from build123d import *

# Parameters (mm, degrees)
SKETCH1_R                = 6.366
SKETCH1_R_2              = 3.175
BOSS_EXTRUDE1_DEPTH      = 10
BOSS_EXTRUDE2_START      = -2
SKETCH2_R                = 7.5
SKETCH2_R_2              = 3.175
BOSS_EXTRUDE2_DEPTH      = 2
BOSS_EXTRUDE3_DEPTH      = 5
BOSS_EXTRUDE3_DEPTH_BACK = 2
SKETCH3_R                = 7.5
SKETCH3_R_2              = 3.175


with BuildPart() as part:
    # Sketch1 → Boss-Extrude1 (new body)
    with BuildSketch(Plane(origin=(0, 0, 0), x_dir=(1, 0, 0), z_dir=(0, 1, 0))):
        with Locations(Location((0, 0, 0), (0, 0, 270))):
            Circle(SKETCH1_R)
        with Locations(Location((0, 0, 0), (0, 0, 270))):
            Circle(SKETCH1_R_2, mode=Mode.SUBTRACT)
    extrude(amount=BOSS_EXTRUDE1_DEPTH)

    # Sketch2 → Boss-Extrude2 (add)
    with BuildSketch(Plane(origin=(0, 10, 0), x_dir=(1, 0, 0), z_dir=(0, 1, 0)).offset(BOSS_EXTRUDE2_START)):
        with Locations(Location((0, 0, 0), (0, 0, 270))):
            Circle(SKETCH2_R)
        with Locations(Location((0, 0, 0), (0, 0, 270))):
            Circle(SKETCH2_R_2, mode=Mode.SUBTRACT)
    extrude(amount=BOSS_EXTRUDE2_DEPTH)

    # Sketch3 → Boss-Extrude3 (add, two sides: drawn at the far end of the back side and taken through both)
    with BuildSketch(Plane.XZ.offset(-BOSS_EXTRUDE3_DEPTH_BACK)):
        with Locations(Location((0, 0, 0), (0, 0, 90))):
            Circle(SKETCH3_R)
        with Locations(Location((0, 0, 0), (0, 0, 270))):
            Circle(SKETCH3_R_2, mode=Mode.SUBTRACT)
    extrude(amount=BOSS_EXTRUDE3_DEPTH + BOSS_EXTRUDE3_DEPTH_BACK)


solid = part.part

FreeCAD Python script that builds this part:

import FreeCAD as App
import Part
import Sketcher

V = App.Vector

doc = App.newDocument("Part")
params = doc.addObject("Spreadsheet::Sheet", "Params")
for row, (alias, value) in enumerate([
    ("sketch1_diameter", "6.35 mm"),
    ("pad1_length", "10 mm"),
    ("sketch2_diameter", "15 mm"),
    ("sketch2_diameter2", "6.35 mm"),
    ("pad2_length", "2 mm"),
    ("sketch3_diameter", "15 mm"),
    ("sketch3_diameter2", "6.35 mm"),
    ("pad3_length", "5 mm"),
    ("pad3_length2", "2 mm"),
], start=1):
    params.set(f"A{row}", alias)
    params.set(f"B{row}", "=" + value)
    params.setAlias(f"B{row}", alias)

body = doc.addObject("PartDesign::Body", "Body")

# Sketch on XZ plane
sketch1 = doc.addObject("Sketcher::SketchObject", "Sketch")
body.addObject(sketch1)
sketch1.AttachmentSupport = (doc.XZ_Plane, [""])
sketch1.MapMode = "FlatFace"
sketch1.addGeometry(Part.Circle(V(0, 0, 0), V(0, 0, 1), 6.4), False)
sketch1.addGeometry(Part.Circle(V(0, 0, 0), V(0, 0, 1), 3.2), False)
sketch1.addConstraint(Sketcher.Constraint("Coincident", 0, 3, -1, 1))
sketch1.addConstraint(Sketcher.Constraint("Coincident", 1, 3, -1, 1))
sketch1.addConstraint(Sketcher.Constraint("Diameter", 1, 6.35))
sketch1.addConstraint(Sketcher.Constraint("Diameter", 0, 12.732))
sketch1.setExpression("Constraints[2]", "Params.sketch1_diameter")
pad1 = doc.addObject("PartDesign::Pad", "Pad")
body.addObject(pad1)
pad1.Profile = sketch1
pad1.setExpression("Length", "Params.pad1_length")
pad1.Reversed = True

# Sketch on XZ plane
sketch2 = doc.addObject("Sketcher::SketchObject", "Sketch001")
body.addObject(sketch2)
sketch2.AttachmentSupport = (doc.XZ_Plane, [""])
sketch2.MapMode = "FlatFace"
sketch2.AttachmentOffset = App.Placement(V(0, 0, -8), App.Rotation())
sketch2.addGeometry(Part.Circle(V(0, 0, 0), V(0, 0, 1), 7.5), False)
sketch2.addGeometry(Part.Circle(V(0, 0, 0), V(0, 0, 1), 3.2), False)
sketch2.addConstraint(Sketcher.Constraint("Coincident", 0, 3, -1, 1))
sketch2.addConstraint(Sketcher.Constraint("Coincident", 1, 3, -1, 1))
sketch2.addConstraint(Sketcher.Constraint("Diameter", 0, 15.0))
sketch2.addConstraint(Sketcher.Constraint("Diameter", 1, 6.35))
sketch2.setExpression("Constraints[2]", "Params.sketch2_diameter")
sketch2.setExpression("Constraints[3]", "Params.sketch2_diameter2")
pad2 = doc.addObject("PartDesign::Pad", "Pad001")
body.addObject(pad2)
pad2.Profile = sketch2
pad2.setExpression("Length", "Params.pad2_length")
pad2.Reversed = True

# Sketch on XZ plane
sketch3 = doc.addObject("Sketcher::SketchObject", "Sketch002")
body.addObject(sketch3)
sketch3.AttachmentSupport = (doc.XZ_Plane, [""])
sketch3.MapMode = "FlatFace"
sketch3.addGeometry(Part.Circle(V(0, 0, 0), V(0, 0, 1), 7.5), False)
sketch3.addGeometry(Part.Circle(V(0, 0, 0), V(0, 0, 1), 3.2), False)
sketch3.addConstraint(Sketcher.Constraint("Coincident", 0, 3, -1, 1))
sketch3.addConstraint(Sketcher.Constraint("Coincident", 1, 3, -1, 1))
sketch3.addConstraint(Sketcher.Constraint("Diameter", 0, 15.0))
sketch3.addConstraint(Sketcher.Constraint("Diameter", 1, 6.35))
sketch3.setExpression("Constraints[2]", "Params.sketch3_diameter")
sketch3.setExpression("Constraints[3]", "Params.sketch3_diameter2")
pad3 = doc.addObject("PartDesign::Pad", "Pad002")
body.addObject(pad3)
pad3.Profile = sketch3
pad3.Type = "TwoLengths"
pad3.setExpression("Length", "Params.pad3_length")
pad3.setExpression("Length2", "Params.pad3_length2")

doc.recompute()
